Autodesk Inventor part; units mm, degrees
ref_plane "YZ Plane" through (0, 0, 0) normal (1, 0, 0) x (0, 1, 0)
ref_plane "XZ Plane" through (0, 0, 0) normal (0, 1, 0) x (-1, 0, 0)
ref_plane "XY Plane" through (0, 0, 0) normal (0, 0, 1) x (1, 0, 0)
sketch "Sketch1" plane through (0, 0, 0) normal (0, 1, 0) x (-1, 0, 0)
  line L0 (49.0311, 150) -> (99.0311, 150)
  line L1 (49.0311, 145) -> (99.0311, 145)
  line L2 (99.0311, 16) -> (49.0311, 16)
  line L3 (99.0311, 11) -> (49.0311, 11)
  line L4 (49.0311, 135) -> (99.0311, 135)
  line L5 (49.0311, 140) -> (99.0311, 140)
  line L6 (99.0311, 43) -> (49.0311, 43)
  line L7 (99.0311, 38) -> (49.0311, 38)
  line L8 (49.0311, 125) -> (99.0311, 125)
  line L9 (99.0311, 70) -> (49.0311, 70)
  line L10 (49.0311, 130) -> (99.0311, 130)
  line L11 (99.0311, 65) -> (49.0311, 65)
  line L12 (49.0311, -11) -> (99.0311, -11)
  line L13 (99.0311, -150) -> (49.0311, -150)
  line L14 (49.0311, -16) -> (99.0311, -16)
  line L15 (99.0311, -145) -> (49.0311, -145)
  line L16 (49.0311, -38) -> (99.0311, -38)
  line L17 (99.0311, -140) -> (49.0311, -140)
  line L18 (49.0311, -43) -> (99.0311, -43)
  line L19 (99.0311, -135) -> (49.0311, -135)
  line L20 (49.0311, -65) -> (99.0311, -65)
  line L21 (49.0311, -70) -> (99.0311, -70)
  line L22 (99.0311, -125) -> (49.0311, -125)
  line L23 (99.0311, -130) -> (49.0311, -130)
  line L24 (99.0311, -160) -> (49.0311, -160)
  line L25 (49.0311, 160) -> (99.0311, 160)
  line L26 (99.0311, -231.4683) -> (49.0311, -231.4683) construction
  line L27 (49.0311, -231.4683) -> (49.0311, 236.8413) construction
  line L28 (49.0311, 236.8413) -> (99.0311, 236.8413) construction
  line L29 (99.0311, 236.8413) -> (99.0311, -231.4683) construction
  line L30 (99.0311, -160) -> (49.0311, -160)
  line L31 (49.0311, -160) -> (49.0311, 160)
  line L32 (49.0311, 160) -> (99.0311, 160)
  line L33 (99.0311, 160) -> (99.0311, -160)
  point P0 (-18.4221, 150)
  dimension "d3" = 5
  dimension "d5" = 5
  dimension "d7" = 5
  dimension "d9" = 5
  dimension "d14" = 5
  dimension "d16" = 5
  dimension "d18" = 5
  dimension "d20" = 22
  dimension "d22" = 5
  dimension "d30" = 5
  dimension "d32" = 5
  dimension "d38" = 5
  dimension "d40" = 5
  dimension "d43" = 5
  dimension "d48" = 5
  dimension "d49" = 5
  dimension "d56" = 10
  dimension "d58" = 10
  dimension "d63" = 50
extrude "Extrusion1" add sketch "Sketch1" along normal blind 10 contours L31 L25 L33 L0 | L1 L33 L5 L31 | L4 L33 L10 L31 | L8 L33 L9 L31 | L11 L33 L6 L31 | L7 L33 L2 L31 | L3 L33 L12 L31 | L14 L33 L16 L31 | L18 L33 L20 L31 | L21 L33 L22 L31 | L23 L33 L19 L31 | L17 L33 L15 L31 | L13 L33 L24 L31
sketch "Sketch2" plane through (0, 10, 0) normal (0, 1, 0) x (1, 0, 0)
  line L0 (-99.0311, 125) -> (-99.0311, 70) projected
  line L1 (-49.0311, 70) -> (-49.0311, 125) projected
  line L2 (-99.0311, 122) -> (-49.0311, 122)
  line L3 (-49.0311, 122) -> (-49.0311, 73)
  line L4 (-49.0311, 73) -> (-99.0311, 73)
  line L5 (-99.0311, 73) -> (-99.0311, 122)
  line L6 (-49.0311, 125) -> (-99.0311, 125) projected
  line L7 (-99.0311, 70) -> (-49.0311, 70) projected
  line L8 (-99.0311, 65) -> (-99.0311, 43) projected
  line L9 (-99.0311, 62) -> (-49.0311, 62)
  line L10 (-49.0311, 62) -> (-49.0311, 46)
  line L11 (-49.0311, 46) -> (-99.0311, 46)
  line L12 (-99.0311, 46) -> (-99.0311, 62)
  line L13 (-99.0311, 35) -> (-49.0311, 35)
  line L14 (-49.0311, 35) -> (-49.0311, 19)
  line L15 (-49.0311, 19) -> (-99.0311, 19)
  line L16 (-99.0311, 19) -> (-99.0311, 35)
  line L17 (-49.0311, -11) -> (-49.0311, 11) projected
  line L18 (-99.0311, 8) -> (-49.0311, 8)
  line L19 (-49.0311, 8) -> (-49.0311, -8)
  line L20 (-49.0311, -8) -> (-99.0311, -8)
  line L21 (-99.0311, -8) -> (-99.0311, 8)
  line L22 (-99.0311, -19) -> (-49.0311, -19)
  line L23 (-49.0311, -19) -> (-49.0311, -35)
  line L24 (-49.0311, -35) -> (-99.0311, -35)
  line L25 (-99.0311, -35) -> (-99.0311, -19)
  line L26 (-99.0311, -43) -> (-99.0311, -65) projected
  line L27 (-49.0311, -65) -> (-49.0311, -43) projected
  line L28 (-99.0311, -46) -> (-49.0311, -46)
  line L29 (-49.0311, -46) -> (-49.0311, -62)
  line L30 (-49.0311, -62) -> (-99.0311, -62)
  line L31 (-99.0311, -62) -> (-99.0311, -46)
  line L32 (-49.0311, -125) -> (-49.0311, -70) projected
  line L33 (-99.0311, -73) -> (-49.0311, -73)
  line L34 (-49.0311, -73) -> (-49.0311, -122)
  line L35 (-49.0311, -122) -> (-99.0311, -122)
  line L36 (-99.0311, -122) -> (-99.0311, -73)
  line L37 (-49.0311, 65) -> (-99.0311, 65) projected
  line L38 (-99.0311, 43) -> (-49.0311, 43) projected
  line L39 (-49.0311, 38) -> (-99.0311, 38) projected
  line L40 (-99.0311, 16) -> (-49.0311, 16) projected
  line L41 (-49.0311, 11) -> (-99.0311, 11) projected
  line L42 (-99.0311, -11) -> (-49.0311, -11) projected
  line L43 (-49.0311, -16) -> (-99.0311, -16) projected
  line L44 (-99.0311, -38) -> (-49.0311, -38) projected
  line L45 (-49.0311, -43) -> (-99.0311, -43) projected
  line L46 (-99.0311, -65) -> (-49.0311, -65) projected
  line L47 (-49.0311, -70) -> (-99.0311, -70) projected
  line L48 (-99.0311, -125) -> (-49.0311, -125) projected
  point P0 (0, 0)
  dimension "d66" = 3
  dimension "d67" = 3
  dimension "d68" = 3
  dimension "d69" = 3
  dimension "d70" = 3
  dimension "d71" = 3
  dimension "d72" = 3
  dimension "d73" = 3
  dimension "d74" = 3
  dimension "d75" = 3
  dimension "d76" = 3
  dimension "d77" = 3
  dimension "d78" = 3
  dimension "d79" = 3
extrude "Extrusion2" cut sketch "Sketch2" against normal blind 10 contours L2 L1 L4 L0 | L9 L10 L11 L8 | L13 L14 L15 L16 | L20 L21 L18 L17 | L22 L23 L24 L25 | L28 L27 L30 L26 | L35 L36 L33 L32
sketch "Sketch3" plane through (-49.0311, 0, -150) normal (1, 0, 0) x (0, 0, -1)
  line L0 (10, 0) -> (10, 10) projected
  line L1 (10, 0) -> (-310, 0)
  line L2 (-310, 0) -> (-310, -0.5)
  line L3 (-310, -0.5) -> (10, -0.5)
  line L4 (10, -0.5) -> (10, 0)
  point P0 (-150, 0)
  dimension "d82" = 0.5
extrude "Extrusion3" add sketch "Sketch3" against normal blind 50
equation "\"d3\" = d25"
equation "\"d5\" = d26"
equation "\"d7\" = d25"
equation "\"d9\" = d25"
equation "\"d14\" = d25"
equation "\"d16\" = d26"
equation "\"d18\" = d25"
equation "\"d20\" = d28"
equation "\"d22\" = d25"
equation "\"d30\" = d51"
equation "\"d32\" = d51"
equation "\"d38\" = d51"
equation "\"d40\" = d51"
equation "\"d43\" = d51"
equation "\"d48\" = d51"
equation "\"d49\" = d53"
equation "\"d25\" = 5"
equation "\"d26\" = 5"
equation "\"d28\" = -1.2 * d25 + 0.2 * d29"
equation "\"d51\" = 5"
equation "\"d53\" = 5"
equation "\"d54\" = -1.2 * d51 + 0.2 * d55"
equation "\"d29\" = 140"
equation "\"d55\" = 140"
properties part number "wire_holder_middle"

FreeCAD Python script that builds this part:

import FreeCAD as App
import Part
import Sketcher

doc = App.newDocument("Part")
body = doc.addObject("PartDesign::Body", "Body")
body.AllowCompound = True

# Sketch on XZ plane
sketch1 = body.newObject("Sketcher::SketchObject", "Sketch")
sketch1.AttachmentSupport = (doc.getObject("XZ_Plane"), [""])
sketch1.MapMode = "FlatFace"
sketch1.addGeometry([
    Part.LineSegment(App.Vector(-49, 160, 0), App.Vector(-49, 150, 0)),  # 0
    Part.LineSegment(App.Vector(-49, 150, 0), App.Vector(-99, 150, 0)),  # 1
    Part.LineSegment(App.Vector(-99, 150, 0), App.Vector(-99, 160, 0)),  # 2
    Part.LineSegment(App.Vector(-99, 160, 0), App.Vector(-49, 160, 0)),  # 3
    Part.LineSegment(App.Vector(-99, 145, 0), App.Vector(-49, 145, 0)),  # 4
    Part.LineSegment(App.Vector(-49, 145, 0), App.Vector(-49, 140, 0)),  # 5
    Part.LineSegment(App.Vector(-49, 140, 0), App.Vector(-99, 140, 0)),  # 6
    Part.LineSegment(App.Vector(-99, 140, 0), App.Vector(-99, 145, 0)),  # 7
    Part.LineSegment(App.Vector(-99, 135, 0), App.Vector(-49, 135, 0)),  # 8
    Part.LineSegment(App.Vector(-49, 135, 0), App.Vector(-49, 130, 0)),  # 9
    Part.LineSegment(App.Vector(-49, 130, 0), App.Vector(-99, 130, 0)),  # 10
    Part.LineSegment(App.Vector(-99, 130, 0), App.Vector(-99, 135, 0)),  # 11
    Part.LineSegment(App.Vector(-99, 125, 0), App.Vector(-49, 125, 0)),  # 12
    Part.LineSegment(App.Vector(-49, 125, 0), App.Vector(-49, 70, 0)),  # 13
    Part.LineSegment(App.Vector(-49, 70, 0), App.Vector(-99, 70, 0)),  # 14
    Part.LineSegment(App.Vector(-99, 70, 0), App.Vector(-99, 125, 0)),  # 15
    Part.LineSegment(App.Vector(-99, 65, 0), App.Vector(-49, 65, 0)),  # 16
    Part.LineSegment(App.Vector(-49, 65, 0), App.Vector(-49, 43, 0)),  # 17
    Part.LineSegment(App.Vector(-49, 43, 0), App.Vector(-99, 43, 0)),  # 18
    Part.LineSegment(App.Vector(-99, 43, 0), App.Vector(-99, 65, 0)),  # 19
    Part.LineSegment(App.Vector(-99, 38, 0), App.Vector(-49, 38, 0)),  # 20
    Part.LineSegment(App.Vector(-49, 38, 0), App.Vector(-49, 16, 0)),  # 21
    Part.LineSegment(App.Vector(-49, 16, 0), App.Vector(-99, 16, 0)),  # 22
    Part.LineSegment(App.Vector(-99, 16, 0), App.Vector(-99, 38, 0)),  # 23
    Part.LineSegment(App.Vector(-99, 11, 0), App.Vector(-49, 11, 0)),  # 24
    Part.LineSegment(App.Vector(-49, 11, 0), App.Vector(-49, -11, 0)),  # 25
    Part.LineSegment(App.Vector(-49, -11, 0), App.Vector(-99, -11, 0)),  # 26
    Part.LineSegment(App.Vector(-99, -11, 0), App.Vector(-99, 11, 0)),  # 27
    Part.LineSegment(App.Vector(-99, -16, 0), App.Vector(-49, -16, 0)),  # 28
    Part.LineSegment(App.Vector(-49, -16, 0), App.Vector(-49, -38, 0)),  # 29
    Part.LineSegment(App.Vector(-49, -38, 0), App.Vector(-99, -38, 0)),  # 30
    Part.LineSegment(App.Vector(-99, -38, 0), App.Vector(-99, -16, 0)),  # 31
    Part.LineSegment(App.Vector(-99, -43, 0), App.Vector(-49, -43, 0)),  # 32
    Part.LineSegment(App.Vector(-49, -43, 0), App.Vector(-49, -65, 0)),  # 33
    Part.LineSegment(App.Vector(-49, -65, 0), App.Vector(-99, -65, 0)),  # 34
    Part.LineSegment(App.Vector(-99, -65, 0), App.Vector(-99, -43, 0)),  # 35
    Part.LineSegment(App.Vector(-99, -70, 0), App.Vector(-49, -70, 0)),  # 36
    Part.LineSegment(App.Vector(-49, -70, 0), App.Vector(-49, -125, 0)),  # 37
    Part.LineSegment(App.Vector(-49, -125, 0), App.Vector(-99, -125, 0)),  # 38
    Part.LineSegment(App.Vector(-99, -125, 0), App.Vector(-99, -70, 0)),  # 39
    Part.LineSegment(App.Vector(-99, -130, 0), App.Vector(-49, -130, 0)),  # 40
    Part.LineSegment(App.Vector(-49, -130, 0), App.Vector(-49, -135, 0)),  # 41
    Part.LineSegment(App.Vector(-49, -135, 0), App.Vector(-99, -135, 0)),  # 42
    Part.LineSegment(App.Vector(-99, -135, 0), App.Vector(-99, -130, 0)),  # 43
    Part.LineSegment(App.Vector(-99, -140, 0), App.Vector(-49, -140, 0)),  # 44
    Part.LineSegment(App.Vector(-49, -140, 0), App.Vector(-49, -145, 0)),  # 45
    Part.LineSegment(App.Vector(-49, -145, 0), App.Vector(-99, -145, 0)),  # 46
    Part.LineSegment(App.Vector(-99, -145, 0), App.Vector(-99, -140, 0)),  # 47
    Part.LineSegment(App.Vector(-99, -150, 0), App.Vector(-49, -150, 0)),  # 48
    Part.LineSegment(App.Vector(-49, -150, 0), App.Vector(-49, -160, 0)),  # 49
    Part.LineSegment(App.Vector(-49, -160, 0), App.Vector(-99, -160, 0)),  # 50
    Part.LineSegment(App.Vector(-99, -160, 0), App.Vector(-99, -150, 0)),  # 51
], False)
sketch1.addConstraint([
    Sketcher.Constraint("Coincident", 0, 2, 1, 1),
    Sketcher.Constraint("Coincident", 1, 2, 2, 1),
    Sketcher.Constraint("Coincident", 2, 2, 3, 1),
    Sketcher.Constraint("Coincident", 3, 2, 0, 1),
    Sketcher.Constraint("Coincident", 4, 2, 5, 1),
    Sketcher.Constraint("Coincident", 5, 2, 6, 1),
    Sketcher.Constraint("Coincident", 6, 2, 7, 1),
    Sketcher.Constraint("Coincident", 7, 2, 4, 1),
    Sketcher.Constraint("Coincident", 8, 2, 9, 1),
    Sketcher.Constraint("Coincident", 9, 2, 10, 1),
    Sketcher.Constraint("Coincident", 10, 2, 11, 1),
    Sketcher.Constraint("Coincident", 11, 2, 8, 1),
    Sketcher.Constraint("Coincident", 12, 2, 13, 1),
    Sketcher.Constraint("Coincident", 13, 2, 14, 1),
    Sketcher.Constraint("Coincident", 14, 2, 15, 1),
    Sketcher.Constraint("Coincident", 15, 2, 12, 1),
    Sketcher.Constraint("Coincident", 16, 2, 17, 1),
    Sketcher.Constraint("Coincident", 17, 2, 18, 1),
    Sketcher.Constraint("Coincident", 18, 2, 19, 1),
    Sketcher.Constraint("Coincident", 19, 2, 16, 1),
    Sketcher.Constraint("Coincident", 20, 2, 21, 1),
    Sketcher.Constraint("Coincident", 21, 2, 22, 1),
    Sketcher.Constraint("Coincident", 22, 2, 23, 1),
    Sketcher.Constraint("Coincident", 23, 2, 20, 1),
    Sketcher.Constraint("Coincident", 24, 2, 25, 1),
    Sketcher.Constraint("Coincident", 25, 2, 26, 1),
    Sketcher.Constraint("Coincident", 26, 2, 27, 1),
    Sketcher.Constraint("Coincident", 27, 2, 24, 1),
    Sketcher.Constraint("Coincident", 28, 2, 29, 1),
    Sketcher.Constraint("Coincident", 29, 2, 30, 1),
    Sketcher.Constraint("Coincident", 30, 2, 31, 1),
    Sketcher.Constraint("Coincident", 31, 2, 28, 1),
    Sketcher.Constraint("Coincident", 32, 2, 33, 1),
    Sketcher.Constraint("Coincident", 33, 2, 34, 1),
    Sketcher.Constraint("Coincident", 34, 2, 35, 1),
    Sketcher.Constraint("Coincident", 35, 2, 32, 1),
    Sketcher.Constraint("Coincident", 36, 2, 37, 1),
    Sketcher.Constraint("Coincident", 37, 2, 38, 1),
    Sketcher.Constraint("Coincident", 38, 2, 39, 1),
    Sketcher.Constraint("Coincident", 39, 2, 36, 1),
    Sketcher.Constraint("Coincident", 40, 2, 41, 1),
    Sketcher.Constraint("Coincident", 41, 2, 42, 1),
    Sketcher.Constraint("Coincident", 42, 2, 43, 1),
    Sketcher.Constraint("Coincident", 43, 2, 40, 1),
    Sketcher.Constraint("Coincident", 44, 2, 45, 1),
    Sketcher.Constraint("Coincident", 45, 2, 46, 1),
    Sketcher.Constraint("Coincident", 46, 2, 47, 1),
    Sketcher.Constraint("Coincident", 47, 2, 44, 1),
    Sketcher.Constraint("Coincident", 48, 2, 49, 1),
    Sketcher.Constraint("Coincident", 49, 2, 50, 1),
    Sketcher.Constraint("Coincident", 50, 2, 51, 1),
    Sketcher.Constraint("Coincident", 51, 2, 48, 1),
    Sketcher.Constraint("Vertical", 0),
    Sketcher.Constraint("Horizontal", 1),
    Sketcher.Constraint("Vertical", 2),
    Sketcher.Constraint("Horizontal", 3),
    Sketcher.Constraint("Horizontal", 4),
    Sketcher.Constraint("Vertical", 5),
    Sketcher.Constraint("Horizontal", 6),
    Sketcher.Constraint("Vertical", 7),
    Sketcher.Constraint("Horizontal", 8),
    Sketcher.Constraint("Vertical", 9),
    Sketcher.Constraint("Horizontal", 10),
    Sketcher.Constraint("Vertical", 11),
    Sketcher.Constraint("Horizontal", 12),
    Sketcher.Constraint("Vertical", 13),
    Sketcher.Constraint("Horizontal", 14),
    Sketcher.Constraint("Vertical", 15),
    Sketcher.Constraint("Horizontal", 16),
    Sketcher.Constraint("Vertical", 17),
    Sketcher.Constraint("Horizontal", 18),
    Sketcher.Constraint("Vertical", 19),
    Sketcher.Constraint("Horizontal", 20),
    Sketcher.Constraint("Vertical", 21),
    Sketcher.Constraint("Horizontal", 22),
    Sketcher.Constraint("Vertical", 23),
    Sketcher.Constraint("Horizontal", 24),
    Sketcher.Constraint("Vertical", 25),
    Sketcher.Constraint("Horizontal", 26),
    Sketcher.Constraint("Vertical", 27),
    Sketcher.Constraint("Horizontal", 28),
    Sketcher.Constraint("Vertical", 29),
    Sketcher.Constraint("Horizontal", 30),
    Sketcher.Constraint("Vertical", 31),
    Sketcher.Constraint("Horizontal", 32),
    Sketcher.Constraint("Vertical", 33),
    Sketcher.Constraint("Horizontal", 34),
    Sketcher.Constraint("Vertical", 35),
    Sketcher.Constraint("Horizontal", 36),
    Sketcher.Constraint("Vertical", 37),
    Sketcher.Constraint("Horizontal", 38),
    Sketcher.Constraint("Vertical", 39),
    Sketcher.Constraint("Horizontal", 40),
    Sketcher.Constraint("Vertical", 41),
    Sketcher.Constraint("Horizontal", 42),
    Sketcher.Constraint("Vertical", 43),
    Sketcher.Constraint("Horizontal", 44),
    Sketcher.Constraint("Vertical", 45),
    Sketcher.Constraint("Horizontal", 46),
    Sketcher.Constraint("Vertical", 47),
    Sketcher.Constraint("Horizontal", 48),
    Sketcher.Constraint("Vertical", 49),
    Sketcher.Constraint("Horizontal", 50),
    Sketcher.Constraint("Vertical", 51),
    Sketcher.Constraint("Symmetric", 21, 2, 28, 2, -1),
    Sketcher.Constraint("Symmetric", 23, 2, 30, 2, -1),
    Sketcher.Constraint("Symmetric", 17, 2, 32, 2, -1),
    Sketcher.Constraint("Symmetric", 19, 2, 34, 2, -1),
    Sketcher.Constraint("Symmetric", 13, 2, 36, 2, -1),
    Sketcher.Constraint("Symmetric", 15, 2, 38, 2, -1),
    Sketcher.Constraint("Symmetric", 9, 2, 40, 2, -1),
    Sketcher.Constraint("Symmetric", 11, 2, 42, 2, -1),
    Sketcher.Constraint("Symmetric", 5, 2, 44, 2, -1),
    Sketcher.Constraint("Symmetric", 7, 2, 46, 2, -1),
    Sketcher.Constraint("Symmetric", 0, 2, 48, 2, -1),
    Sketcher.Constraint("Symmetric", 2, 2, 50, 2, -1),
    Sketcher.Constraint("Vertical", 3, 2, 4, 2),
    Sketcher.Constraint("Vertical", 2, 2, 6, 2),
    Sketcher.Constraint("Vertical", 5, 2, 8, 2),
    Sketcher.Constraint("Vertical", 7, 2, 10, 2),
    Sketcher.Constraint("Vertical", 9, 2, 12, 2),
    Sketcher.Constraint("Vertical", 11, 2, 14, 2),
    Sketcher.Constraint("Vertical", 13, 2, 16, 2),
    Sketcher.Constraint("Vertical", 15, 2, 18, 2),
    Sketcher.Constraint("Vertical", 17, 2, 20, 2),
    Sketcher.Constraint("Vertical", 19, 2, 22, 2),
    Sketcher.Constraint("Vertical", 21, 2, 24, 2),
    Sketcher.Constraint("Vertical", 23, 2, 26, 2),
    Sketcher.Constraint("Equal", 7, 9),
    Sketcher.Constraint("Equal", 19, 21),
    Sketcher.Constraint("Equal", 23, 25),
    Sketcher.Constraint("DistanceX", 1, 2, 1, 1, 50.0),
    Sketcher.Constraint("DistanceY", 0, 2, 0, 1, 10.0),
    Sketcher.Constraint("DistanceY", 5, 2, 5, 1, 5.0),
    Sketcher.Constraint("DistanceY", 17, 2, 17, 1, 22.0),
    Sketcher.Constraint("DistanceY", 4, 2, 0, 2, 5.0),
    Sketcher.Constraint("DistanceY", 8, 2, 5, 2, 5.0),
    Sketcher.Constraint("DistanceY", 12, 2, 9, 2, 5.0),
    Sketcher.Constraint("DistanceY", 16, 2, 13, 2, 5.0),
    Sketcher.Constraint("DistanceY", 20, 2, 17, 2, 5.0),
    Sketcher.Constraint("DistanceY", 24, 2, 21, 2, 5.0),
    Sketcher.Constraint("DistanceY", 28, 2, 25, 2, 5.0),
    Sketcher.Constraint("DistanceY", 13, 2, 13, 1, 55.0),
    Sketcher.Constraint("DistanceX", 0, 2, -1, 1, 49.031),
])
pad1 = body.newObject("PartDesign::Pad", "Pad")
pad1.Profile = sketch1
pad1.Length = 10
pad1.Reversed = True

# Sketch on XZ plane
sketch2 = body.newObject("Sketcher::SketchObject", "Sketch001")
sketch2.AttachmentSupport = (doc.getObject("XZ_Plane"), [""])
sketch2.MapMode = "FlatFace"
sketch2.AttachmentOffset = App.Placement(App.Vector(0, 0, -10), App.Rotation())
sketch2.addGeometry([
    Part.LineSegment(App.Vector(-49, -122, 0), App.Vector(-99, -122, 0)),  # 0
    Part.LineSegment(App.Vector(-99, -122, 0), App.Vector(-99, -73, 0)),  # 1
    Part.LineSegment(App.Vector(-99, -73, 0), App.Vector(-49, -73, 0)),  # 2
    Part.LineSegment(App.Vector(-49, -73, 0), App.Vector(-49, -122, 0)),  # 3
    Part.LineSegment(App.Vector(-49, -62, 0), App.Vector(-99, -62, 0)),  # 4
    Part.LineSegment(App.Vector(-99, -62, 0), App.Vector(-99, -46, 0)),  # 5
    Part.LineSegment(App.Vector(-99, -46, 0), App.Vector(-49, -46, 0)),  # 6
    Part.LineSegment(App.Vector(-49, -46, 0), App.Vector(-49, -62, 0)),  # 7
    Part.LineSegment(App.Vector(-49, -35, 0), App.Vector(-99, -35, 0)),  # 8
    Part.LineSegment(App.Vector(-99, -35, 0), App.Vector(-99, -19, 0)),  # 9
    Part.LineSegment(App.Vector(-99, -19, 0), App.Vector(-49, -19, 0)),  # 10
    Part.LineSegment(App.Vector(-49, -19, 0), App.Vector(-49, -35, 0)),  # 11
    Part.LineSegment(App.Vector(-99, 8, 0), App.Vector(-49, 8, 0)),  # 12
    Part.LineSegment(App.Vector(-49, 8, 0), App.Vector(-49, -8, 0)),  # 13
    Part.LineSegment(App.Vector(-49, -8, 0), App.Vector(-99, -8, 0)),  # 14
    Part.LineSegment(App.Vector(-99, -8, 0), App.Vector(-99, 8, 0)),  # 15
    Part.LineSegment(App.Vector(-49, 19, 0), App.Vector(-99, 19, 0)),  # 16
    Part.LineSegment(App.Vector(-99, 19, 0), App.Vector(-99, 35, 0)),  # 17
    Part.LineSegment(App.Vector(-99, 35, 0), App.Vector(-49, 35, 0)),  # 18
    Part.LineSegment(App.Vector(-49, 35, 0), App.Vector(-49, 19, 0)),  # 19
    Part.LineSegment(App.Vector(-49, 46, 0), App.Vector(-99, 46, 0)),  # 20
    Part.LineSegment(App.Vector(-99, 46, 0), App.Vector(-99, 62, 0)),  # 21
    Part.LineSegment(App.Vector(-99, 62, 0), App.Vector(-49, 62, 0)),  # 22
    Part.LineSegment(App.Vector(-49, 62, 0), App.Vector(-49, 46, 0)),  # 23
    Part.LineSegment(App.Vector(-99, 122, 0), App.Vector(-49, 122, 0)),  # 24
    Part.LineSegment(App.Vector(-49, 122, 0), App.Vector(-49, 73, 0)),  # 25
    Part.LineSegment(App.Vector(-49, 73, 0), App.Vector(-99, 73, 0)),  # 26
    Part.LineSegment(App.Vector(-99, 73, 0), App.Vector(-99, 122, 0)),  # 27
], False)
sketch2.addConstraint([
    Sketcher.Constraint("Coincident", 0, 2, 1, 1),
    Sketcher.Constraint("Coincident", 1, 2, 2, 1),
    Sketcher.Constraint("Coincident", 2, 2, 3, 1),
    Sketcher.Constraint("Coincident", 3, 2, 0, 1),
    Sketcher.Constraint("Coincident", 4, 2, 5, 1),
    Sketcher.Constraint("Coincident", 5, 2, 6, 1),
    Sketcher.Constraint("Coincident", 6, 2, 7, 1),
    Sketcher.Constraint("Coincident", 7, 2, 4, 1),
    Sketcher.Constraint("Coincident", 8, 2, 9, 1),
    Sketcher.Constraint("Coincident", 9, 2, 10, 1),
    Sketcher.Constraint("Coincident", 10, 2, 11, 1),
    Sketcher.Constraint("Coincident", 11, 2, 8, 1),
    Sketcher.Constraint("Coincident", 12, 2, 13, 1),
    Sketcher.Constraint("Coincident", 13, 2, 14, 1),
    Sketcher.Constraint("Coincident", 14, 2, 15, 1),
    Sketcher.Constraint("Coincident", 15, 2, 12, 1),
    Sketcher.Constraint("Coincident", 16, 2, 17, 1),
    Sketcher.Constraint("Coincident", 17, 2, 18, 1),
    Sketcher.Constraint("Coincident", 18, 2, 19, 1),
    Sketcher.Constraint("Coincident", 19, 2, 16, 1),
    Sketcher.Constraint("Coincident", 20, 2, 21, 1),
    Sketcher.Constraint("Coincident", 21, 2, 22, 1),
    Sketcher.Constraint("Coincident", 22, 2, 23, 1),
    Sketcher.Constraint("Coincident", 23, 2, 20, 1),
    Sketcher.Constraint("Coincident", 24, 2, 25, 1),
    Sketcher.Constraint("Coincident", 25, 2, 26, 1),
    Sketcher.Constraint("Coincident", 26, 2, 27, 1),
    Sketcher.Constraint("Coincident", 27, 2, 24, 1),
    Sketcher.Constraint("Horizontal", 0),
    Sketcher.Constraint("Vertical", 1),
    Sketcher.Constraint("Horizontal", 2),
    Sketcher.Constraint("Vertical", 3),
    Sketcher.Constraint("Horizontal", 4),
    Sketcher.Constraint("Vertical", 5),
    Sketcher.Constraint("Horizontal", 6),
    Sketcher.Constraint("Vertical", 7),
    Sketcher.Constraint("Horizontal", 8),
    Sketcher.Constraint("Vertical", 9),
    Sketcher.Constraint("Horizontal", 10),
    Sketcher.Constraint("Vertical", 11),
    Sketcher.Constraint("Horizontal", 12),
    Sketcher.Constraint("Vertical", 13),
    Sketcher.Constraint("Horizontal", 14),
    Sketcher.Constraint("Vertical", 15),
    Sketcher.Constraint("Horizontal", 16),
    Sketcher.Constraint("Vertical", 17),
    Sketcher.Constraint("Horizontal", 18),
    Sketcher.Constraint("Vertical", 19),
    Sketcher.Constraint("Horizontal", 20),
    Sketcher.Constraint("Vertical", 21),
    Sketcher.Constraint("Horizontal", 22),
    Sketcher.Constraint("Vertical", 23),
    Sketcher.Constraint("Horizontal", 24),
    Sketcher.Constraint("Vertical", 25),
    Sketcher.Constraint("Horizontal", 26),
    Sketcher.Constraint("Vertical", 27),
    Sketcher.Constraint("Symmetric", 9, 2, 16, 2, -1),
    Sketcher.Constraint("Symmetric", 11, 2, 18, 2, -1),
    Sketcher.Constraint("Symmetric", 5, 2, 20, 2, -1),
    Sketcher.Constraint("Symmetric", 7, 2, 22, 2, -1),
    Sketcher.Constraint("Symmetric", 3, 2, 24, 2, -1),
    Sketcher.Constraint("Symmetric", 1, 2, 26, 2, -1),
    Sketcher.Constraint("Vertical", 1, 2, 4, 2),
    Sketcher.Constraint("Vertical", 3, 2, 6, 2),
    Sketcher.Constraint("Vertical", 5, 2, 8, 2),
    Sketcher.Constraint("Vertical", 7, 2, 10, 2),
    Sketcher.Constraint("Vertical", 11, 2, 12, 2),
    Sketcher.Constraint("Vertical", 9, 2, 14, 2),
    Sketcher.Constraint("Equal", 7, 9),
    Sketcher.Constraint("Equal", 11, 13),
    Sketcher.Constraint("DistanceX", 0, 2, 0, 1, 50.0),
    Sketcher.Constraint("DistanceY", 1, 1, 1, 2, 49.0),
    Sketcher.Constraint("DistanceY", 5, 1, 5, 2, 16.0),
    Sketcher.Constraint("DistanceY", 0, 2, -1, 1, 122.0),
    Sketcher.Constraint("DistanceY", 4, 2, -1, 1, 62.0),
    Sketcher.Constraint("DistanceY", 8, 2, -1, 1, 35.0),
    Sketcher.Constraint("DistanceY", -1, 1, 12, 2, 8.0),
    Sketcher.Constraint("DistanceX", 0, 2, -1, 1, 99.031),
])
pocket1 = body.newObject("PartDesign::Pocket", "Pocket")
pocket1.Profile = sketch2
pocket1.Length = 10
pocket1.Reversed = True

# Sketch on YZ plane
sketch3 = body.newObject("Sketcher::SketchObject", "Sketch002")
sketch3.AttachmentSupport = (doc.getObject("YZ_Plane"), [""])
sketch3.MapMode = "FlatFace"
sketch3.AttachmentOffset = App.Placement(App.Vector(0, 0, -49.0311), App.Rotation())
sketch3.addGeometry([
    Part.LineSegment(App.Vector(-0.5, -160, 0), App.Vector(0, -160, 0)),
    Part.LineSegment(App.Vector(0, -160, 0), App.Vector(0, 160, 0)),
    Part.LineSegment(App.Vector(0, 160, 0), App.Vector(-0.5, 160, 0)),
    Part.LineSegment(App.Vector(-0.5, 160, 0), App.Vector(-0.5, -160, 0)),
], False)
sketch3.addConstraint([
    Sketcher.Constraint("Coincident", 0, 2, 1, 1),
    Sketcher.Constraint("Coincident", 1, 2, 2, 1),
    Sketcher.Constraint("Coincident", 2, 2, 3, 1),
    Sketcher.Constraint("Coincident", 3, 2, 0, 1),
    Sketcher.Constraint("Horizontal", 0),
    Sketcher.Constraint("Vertical", 1),
    Sketcher.Constraint("Horizontal", 2),
    Sketcher.Constraint("Vertical", 3),
    Sketcher.Constraint("Symmetric", 0, 2, 1, 2, -1, 1),
    Sketcher.Constraint("DistanceX", 0, 1, 0, 2, 0.5),
    Sketcher.Constraint("DistanceY", 1, 1, 1, 2, 320.0),
])
pad2 = body.newObject("PartDesign::Pad", "Pad001")
pad2.Profile = sketch3
pad2.Length = 50
pad2.Reversed = True

doc.recompute()
